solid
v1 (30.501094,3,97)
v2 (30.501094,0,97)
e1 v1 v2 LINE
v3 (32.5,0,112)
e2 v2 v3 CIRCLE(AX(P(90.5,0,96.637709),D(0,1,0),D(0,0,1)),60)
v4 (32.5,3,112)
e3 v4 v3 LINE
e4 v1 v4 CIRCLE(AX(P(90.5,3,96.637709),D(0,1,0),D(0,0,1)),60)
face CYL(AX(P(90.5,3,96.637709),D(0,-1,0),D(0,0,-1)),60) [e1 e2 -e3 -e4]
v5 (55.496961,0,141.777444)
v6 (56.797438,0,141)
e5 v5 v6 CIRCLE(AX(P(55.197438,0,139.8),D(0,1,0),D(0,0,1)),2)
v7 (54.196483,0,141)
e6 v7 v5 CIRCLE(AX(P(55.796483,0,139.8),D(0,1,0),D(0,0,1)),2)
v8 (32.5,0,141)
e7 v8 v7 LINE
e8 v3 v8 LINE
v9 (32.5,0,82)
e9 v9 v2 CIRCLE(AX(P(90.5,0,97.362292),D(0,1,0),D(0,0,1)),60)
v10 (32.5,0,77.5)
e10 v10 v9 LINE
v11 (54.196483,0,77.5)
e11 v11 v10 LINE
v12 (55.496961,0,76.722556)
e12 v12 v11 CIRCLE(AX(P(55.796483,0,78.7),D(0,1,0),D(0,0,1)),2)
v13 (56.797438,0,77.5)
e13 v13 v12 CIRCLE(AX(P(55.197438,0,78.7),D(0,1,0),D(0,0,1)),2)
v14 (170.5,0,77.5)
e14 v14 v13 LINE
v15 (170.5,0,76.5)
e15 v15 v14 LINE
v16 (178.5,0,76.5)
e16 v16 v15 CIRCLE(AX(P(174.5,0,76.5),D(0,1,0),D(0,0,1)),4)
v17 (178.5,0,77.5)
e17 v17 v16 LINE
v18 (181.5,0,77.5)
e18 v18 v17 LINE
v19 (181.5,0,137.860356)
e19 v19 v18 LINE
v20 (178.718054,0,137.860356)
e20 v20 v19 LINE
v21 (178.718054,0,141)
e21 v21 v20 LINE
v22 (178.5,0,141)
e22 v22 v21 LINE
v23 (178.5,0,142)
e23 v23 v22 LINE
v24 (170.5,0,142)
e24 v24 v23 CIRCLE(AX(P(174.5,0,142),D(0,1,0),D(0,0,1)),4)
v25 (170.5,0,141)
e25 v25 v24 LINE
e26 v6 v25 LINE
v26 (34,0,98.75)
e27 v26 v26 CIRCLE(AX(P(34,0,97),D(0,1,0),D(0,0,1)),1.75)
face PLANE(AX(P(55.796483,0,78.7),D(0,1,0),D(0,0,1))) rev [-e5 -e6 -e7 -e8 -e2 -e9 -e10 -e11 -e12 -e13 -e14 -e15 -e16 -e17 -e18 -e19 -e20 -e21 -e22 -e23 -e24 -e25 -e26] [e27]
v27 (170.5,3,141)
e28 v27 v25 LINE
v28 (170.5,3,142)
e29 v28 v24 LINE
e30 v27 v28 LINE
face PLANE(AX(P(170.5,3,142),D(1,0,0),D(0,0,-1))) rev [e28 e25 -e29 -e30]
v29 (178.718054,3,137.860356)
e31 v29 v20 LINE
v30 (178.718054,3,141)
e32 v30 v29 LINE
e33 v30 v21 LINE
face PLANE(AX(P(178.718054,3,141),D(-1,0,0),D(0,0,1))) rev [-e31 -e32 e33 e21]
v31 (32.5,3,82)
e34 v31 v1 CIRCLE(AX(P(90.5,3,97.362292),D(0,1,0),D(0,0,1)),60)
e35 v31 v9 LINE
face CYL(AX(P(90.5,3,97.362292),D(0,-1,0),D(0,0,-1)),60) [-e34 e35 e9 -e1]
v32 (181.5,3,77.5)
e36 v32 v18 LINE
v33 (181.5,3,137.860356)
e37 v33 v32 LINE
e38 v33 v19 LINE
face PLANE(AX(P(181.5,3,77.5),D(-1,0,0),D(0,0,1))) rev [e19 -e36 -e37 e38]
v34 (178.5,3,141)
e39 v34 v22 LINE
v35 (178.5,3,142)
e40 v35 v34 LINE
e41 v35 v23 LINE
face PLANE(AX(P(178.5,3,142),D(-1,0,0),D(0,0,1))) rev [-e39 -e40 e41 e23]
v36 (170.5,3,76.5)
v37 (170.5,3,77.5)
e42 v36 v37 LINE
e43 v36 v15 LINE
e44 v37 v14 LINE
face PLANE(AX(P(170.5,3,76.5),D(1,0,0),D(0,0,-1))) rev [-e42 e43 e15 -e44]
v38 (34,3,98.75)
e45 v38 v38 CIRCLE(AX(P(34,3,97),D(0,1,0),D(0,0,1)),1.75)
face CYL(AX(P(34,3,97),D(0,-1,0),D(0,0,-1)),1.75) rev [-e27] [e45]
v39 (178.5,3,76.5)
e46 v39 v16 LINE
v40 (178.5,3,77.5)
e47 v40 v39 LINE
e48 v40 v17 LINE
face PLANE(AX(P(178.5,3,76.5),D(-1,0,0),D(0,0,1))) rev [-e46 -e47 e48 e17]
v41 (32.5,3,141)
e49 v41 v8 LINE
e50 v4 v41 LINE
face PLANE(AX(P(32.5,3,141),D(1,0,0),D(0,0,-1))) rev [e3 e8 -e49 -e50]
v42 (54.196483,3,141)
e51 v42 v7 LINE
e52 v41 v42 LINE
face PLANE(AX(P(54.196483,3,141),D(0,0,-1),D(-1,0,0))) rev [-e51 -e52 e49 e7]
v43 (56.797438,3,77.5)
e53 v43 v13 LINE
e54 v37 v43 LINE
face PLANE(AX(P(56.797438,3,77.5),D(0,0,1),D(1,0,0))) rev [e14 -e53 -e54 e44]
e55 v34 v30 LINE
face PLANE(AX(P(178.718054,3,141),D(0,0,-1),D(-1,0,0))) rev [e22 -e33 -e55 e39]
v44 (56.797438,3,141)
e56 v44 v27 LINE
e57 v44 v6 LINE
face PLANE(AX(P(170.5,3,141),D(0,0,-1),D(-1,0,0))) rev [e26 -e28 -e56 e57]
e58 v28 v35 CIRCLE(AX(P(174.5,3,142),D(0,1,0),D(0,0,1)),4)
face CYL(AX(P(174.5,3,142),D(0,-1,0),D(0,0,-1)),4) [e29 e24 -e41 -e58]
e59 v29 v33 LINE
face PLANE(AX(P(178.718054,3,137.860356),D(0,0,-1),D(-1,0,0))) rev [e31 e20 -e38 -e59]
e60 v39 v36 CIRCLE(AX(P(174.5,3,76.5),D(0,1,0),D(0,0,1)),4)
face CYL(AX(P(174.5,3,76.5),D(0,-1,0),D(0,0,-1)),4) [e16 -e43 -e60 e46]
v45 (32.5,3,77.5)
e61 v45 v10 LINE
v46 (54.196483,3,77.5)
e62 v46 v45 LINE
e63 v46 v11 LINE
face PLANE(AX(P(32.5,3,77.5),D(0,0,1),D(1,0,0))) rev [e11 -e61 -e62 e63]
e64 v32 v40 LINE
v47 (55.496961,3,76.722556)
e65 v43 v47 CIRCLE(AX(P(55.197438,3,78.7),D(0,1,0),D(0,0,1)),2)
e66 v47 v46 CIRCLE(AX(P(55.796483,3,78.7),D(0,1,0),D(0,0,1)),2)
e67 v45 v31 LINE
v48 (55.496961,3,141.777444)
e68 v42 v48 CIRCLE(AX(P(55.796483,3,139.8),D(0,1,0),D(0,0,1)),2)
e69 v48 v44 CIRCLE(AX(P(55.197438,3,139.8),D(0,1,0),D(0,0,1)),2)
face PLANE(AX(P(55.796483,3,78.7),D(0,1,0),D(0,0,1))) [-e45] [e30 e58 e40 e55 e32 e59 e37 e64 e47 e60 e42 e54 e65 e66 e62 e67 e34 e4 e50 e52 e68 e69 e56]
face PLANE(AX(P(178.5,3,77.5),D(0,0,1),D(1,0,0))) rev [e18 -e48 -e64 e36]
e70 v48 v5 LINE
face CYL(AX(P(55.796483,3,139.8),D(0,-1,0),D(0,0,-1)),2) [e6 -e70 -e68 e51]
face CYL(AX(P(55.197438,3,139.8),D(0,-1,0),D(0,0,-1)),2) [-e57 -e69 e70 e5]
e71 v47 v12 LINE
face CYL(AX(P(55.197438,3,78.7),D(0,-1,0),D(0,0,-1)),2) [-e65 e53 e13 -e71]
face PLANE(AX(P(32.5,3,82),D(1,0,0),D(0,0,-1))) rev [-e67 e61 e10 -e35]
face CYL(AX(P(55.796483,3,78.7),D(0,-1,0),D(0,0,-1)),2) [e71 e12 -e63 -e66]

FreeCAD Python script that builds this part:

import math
import FreeCAD as App
import Part
import Sketcher

V = App.Vector
Q = App.Units.Quantity

doc = App.newDocument("Part")
body = doc.addObject("PartDesign::Body", "Body")

# Sketch on XZ plane
sketch1 = body.newObject("Sketcher::SketchObject", "Sketch")
sketch1.AttachmentSupport = (doc.getObject("XZ_Plane"), [""])
sketch1.MapMode = "FlatFace"
sketch1.addGeometry([
    Part.LineSegment(V(54.196483, 77.5, 0), V(32.5, 77.5, 0)),  # 0
    Part.LineSegment(V(32.5, 77.5, 0), V(32.5, 82, 0)),  # 1
    Part.ArcOfCircle(Part.Circle(V(90.5, 97.362292, 0), V(0, 0, 1), 60), math.radians(-179.654035), math.radians(-165.164888)),  # 2
    Part.ArcOfCircle(Part.Circle(V(90.5, 96.637709, 0), V(0, 0, 1), 60), math.radians(165.164888), math.radians(179.654035)),  # 3
    Part.LineSegment(V(32.5, 112, 0), V(32.5, 141, 0)),  # 4
    Part.LineSegment(V(32.5, 141, 0), V(54.196483, 141, 0)),  # 5
    Part.ArcOfCircle(Part.Circle(V(55.796483, 139.8, 0), V(0, 0, 1), 2), math.radians(98.613097), math.radians(143.130102)),  # 6
    Part.ArcOfCircle(Part.Circle(V(55.197438, 139.8, 0), V(0, 0, 1), 2), math.radians(36.869898), math.radians(81.386903)),  # 7
    Part.LineSegment(V(56.797438, 141, 0), V(170.5, 141, 0)),  # 8
    Part.LineSegment(V(170.5, 141, 0), V(170.5, 142, 0)),  # 9
    Part.ArcOfCircle(Part.Circle(V(174.5, 142, 0), V(0, 0, 1), 4), math.radians(0), math.radians(180)),  # 10
    Part.LineSegment(V(178.5, 142, 0), V(178.5, 141, 0)),  # 11
    Part.LineSegment(V(178.5, 141, 0), V(178.718054, 141, 0)),  # 12
    Part.LineSegment(V(178.718054, 141, 0), V(178.718054, 137.860356, 0)),  # 13
    Part.LineSegment(V(178.718054, 137.860356, 0), V(181.5, 137.860356, 0)),  # 14
    Part.LineSegment(V(181.5, 137.860356, 0), V(181.5, 77.5, 0)),  # 15
    Part.LineSegment(V(181.5, 77.5, 0), V(178.5, 77.5, 0)),  # 16
    Part.LineSegment(V(178.5, 77.5, 0), V(178.5, 76.5, 0)),  # 17
    Part.ArcOfCircle(Part.Circle(V(174.5, 76.5, 0), V(0, 0, 1), 4), math.radians(180), math.radians(360)),  # 18
    Part.LineSegment(V(170.5, 76.5, 0), V(170.5, 77.5, 0)),  # 19
    Part.LineSegment(V(170.5, 77.5, 0), V(56.797438, 77.5, 0)),  # 20
    Part.ArcOfCircle(Part.Circle(V(55.197438, 78.7, 0), V(0, 0, 1), 2), math.radians(-81.386903), math.radians(-36.869898)),  # 21
    Part.ArcOfCircle(Part.Circle(V(55.796483, 78.7, 0), V(0, 0, 1), 2), math.radians(-143.130102), math.radians(-98.613097)),  # 22
    Part.Circle(V(34, 97, 0), V(0, 0, 1), 1.75),  # 23
], False)
sketch1.addConstraint([
    Sketcher.Constraint("Coincident", 0, 2, 1, 1),
    Sketcher.Constraint("Coincident", 1, 2, 2, 2),
    Sketcher.Constraint("Coincident", 2, 1, 3, 2),
    Sketcher.Constraint("Coincident", 3, 1, 4, 1),
    Sketcher.Constraint("Coincident", 4, 2, 5, 1),
    Sketcher.Constraint("Coincident", 5, 2, 6, 2),
    Sketcher.Constraint("Coincident", 6, 1, 7, 2),
    Sketcher.Constraint("Coincident", 7, 1, 8, 1),
    Sketcher.Constraint("Coincident", 8, 2, 9, 1),
    Sketcher.Constraint("Tangent", 9, 2, 10, 2),
    Sketcher.Constraint("Tangent", 10, 1, 11, 1),
    Sketcher.Constraint("Coincident", 11, 2, 12, 1),
    Sketcher.Constraint("Coincident", 12, 2, 13, 1),
    Sketcher.Constraint("Coincident", 13, 2, 14, 1),
    Sketcher.Constraint("Coincident", 14, 2, 15, 1),
    Sketcher.Constraint("Coincident", 15, 2, 16, 1),
    Sketcher.Constraint("Coincident", 16, 2, 17, 1),
    Sketcher.Constraint("Tangent", 17, 2, 18, 2),
    Sketcher.Constraint("Tangent", 18, 1, 19, 1),
    Sketcher.Constraint("Coincident", 19, 2, 20, 1),
    Sketcher.Constraint("Coincident", 20, 2, 21, 2),
    Sketcher.Constraint("Coincident", 21, 1, 22, 2),
    Sketcher.Constraint("Coincident", 22, 1, 0, 1),
    Sketcher.Constraint("Horizontal", 0),
    Sketcher.Constraint("Vertical", 1),
    Sketcher.Constraint("Vertical", 4),
    Sketcher.Constraint("Horizontal", 5),
    Sketcher.Constraint("Horizontal", 8),
    Sketcher.Constraint("Vertical", 9),
    Sketcher.Constraint("Vertical", 11),
    Sketcher.Constraint("Horizontal", 12),
    Sketcher.Constraint("Vertical", 13),
    Sketcher.Constraint("Horizontal", 14),
    Sketcher.Constraint("Vertical", 15),
    Sketcher.Constraint("Horizontal", 16),
    Sketcher.Constraint("Vertical", 17),
    Sketcher.Constraint("Vertical", 19),
    Sketcher.Constraint("Horizontal", 20),
    Sketcher.Constraint("Equal", 2, 3),
    Sketcher.Constraint("Equal", 6, 7),
    Sketcher.Constraint("Equal", 10, 18),
    Sketcher.Constraint("Equal", 7, 21),
    Sketcher.Constraint("Equal", 21, 22),
    Sketcher.Constraint("Horizontal", 6, 3, 7, 3),
    Sketcher.Constraint("Horizontal", 21, 3, 22, 3),
    Sketcher.Constraint("Horizontal", 23, 3, 2, 1),
    Sketcher.Constraint("Horizontal", 5, 2, 7, 1),
    Sketcher.Constraint("Horizontal", 8, 2, 11, 2),
    Sketcher.Constraint("Horizontal", 0, 2, 15, 2),
    Sketcher.Constraint("Horizontal", 16, 2, 19, 2),
    Sketcher.Constraint("Vertical", 2, 3, 3, 3),
    Sketcher.Constraint("Vertical", 10, 3, 18, 3),
    Sketcher.Constraint("Vertical", 7, 3, 21, 3),
    Sketcher.Constraint("Vertical", 6, 3, 22, 3),
    Sketcher.Constraint("Vertical", 1, 2, 3, 1),
    Sketcher.Constraint("Vertical", 7, 1, 20, 2),
    Sketcher.Constraint("Equal", 11, 17),
    Sketcher.Constraint("Radius", 2, Q("60 mm")),
    Sketcher.Constraint("Radius", 6, Q("2 mm")),
    Sketcher.Constraint("Radius", 10, Q("4 mm")),
    Sketcher.Constraint("Diameter", 23, Q("3.5 mm")),
    Sketcher.Constraint("DistanceX", 16, 2, 16, 1, Q("3 mm")),
    Sketcher.Constraint("DistanceY", 4, 1, 4, 2, Q("29 mm")),
    Sketcher.Constraint("DistanceY", 9, 1, 9, 2, Q("1 mm")),
    Sketcher.Constraint("DistanceY", 1, 1, 1, 2, Q("4.5 mm")),
    Sketcher.Constraint("DistanceY", -1, 1, 10, 3, Q("142 mm")),
    Sketcher.Constraint("DistanceX", -1, 1, 23, 3, Q("34 mm")),
    Sketcher.Constraint("DistanceY", -1, 1, 23, 3, Q("97 mm")),
    Sketcher.Constraint("DistanceX", 2, 3, 10, 3, Q("84 mm")),
    Sketcher.Constraint("DistanceX", 0, 2, 3, 3, Q("58 mm")),
    Sketcher.Constraint("DistanceX", -1, 1, 2, 3, Q("90.5 mm")),
    Sketcher.Constraint("DistanceY", -1, 1, 6, 3, Q("139.8 mm")),
    Sketcher.Constraint("DistanceX", 0, 2, 0, 1, Q("21.696483 mm")),
    Sketcher.Constraint("DistanceX", 8, 1, 8, 2, Q("113.702562 mm")),
    Sketcher.Constraint("DistanceX", 12, 1, 12, 2, Q("0.218053 mm")),
    Sketcher.Constraint("DistanceY", 13, 2, 13, 1, Q("3.139644 mm")),
])
pad1 = body.newObject("PartDesign::Pad", "Pad")
pad1.Profile = sketch1
pad1.Length = 3
pad1.Reversed = True

doc.recompute()
